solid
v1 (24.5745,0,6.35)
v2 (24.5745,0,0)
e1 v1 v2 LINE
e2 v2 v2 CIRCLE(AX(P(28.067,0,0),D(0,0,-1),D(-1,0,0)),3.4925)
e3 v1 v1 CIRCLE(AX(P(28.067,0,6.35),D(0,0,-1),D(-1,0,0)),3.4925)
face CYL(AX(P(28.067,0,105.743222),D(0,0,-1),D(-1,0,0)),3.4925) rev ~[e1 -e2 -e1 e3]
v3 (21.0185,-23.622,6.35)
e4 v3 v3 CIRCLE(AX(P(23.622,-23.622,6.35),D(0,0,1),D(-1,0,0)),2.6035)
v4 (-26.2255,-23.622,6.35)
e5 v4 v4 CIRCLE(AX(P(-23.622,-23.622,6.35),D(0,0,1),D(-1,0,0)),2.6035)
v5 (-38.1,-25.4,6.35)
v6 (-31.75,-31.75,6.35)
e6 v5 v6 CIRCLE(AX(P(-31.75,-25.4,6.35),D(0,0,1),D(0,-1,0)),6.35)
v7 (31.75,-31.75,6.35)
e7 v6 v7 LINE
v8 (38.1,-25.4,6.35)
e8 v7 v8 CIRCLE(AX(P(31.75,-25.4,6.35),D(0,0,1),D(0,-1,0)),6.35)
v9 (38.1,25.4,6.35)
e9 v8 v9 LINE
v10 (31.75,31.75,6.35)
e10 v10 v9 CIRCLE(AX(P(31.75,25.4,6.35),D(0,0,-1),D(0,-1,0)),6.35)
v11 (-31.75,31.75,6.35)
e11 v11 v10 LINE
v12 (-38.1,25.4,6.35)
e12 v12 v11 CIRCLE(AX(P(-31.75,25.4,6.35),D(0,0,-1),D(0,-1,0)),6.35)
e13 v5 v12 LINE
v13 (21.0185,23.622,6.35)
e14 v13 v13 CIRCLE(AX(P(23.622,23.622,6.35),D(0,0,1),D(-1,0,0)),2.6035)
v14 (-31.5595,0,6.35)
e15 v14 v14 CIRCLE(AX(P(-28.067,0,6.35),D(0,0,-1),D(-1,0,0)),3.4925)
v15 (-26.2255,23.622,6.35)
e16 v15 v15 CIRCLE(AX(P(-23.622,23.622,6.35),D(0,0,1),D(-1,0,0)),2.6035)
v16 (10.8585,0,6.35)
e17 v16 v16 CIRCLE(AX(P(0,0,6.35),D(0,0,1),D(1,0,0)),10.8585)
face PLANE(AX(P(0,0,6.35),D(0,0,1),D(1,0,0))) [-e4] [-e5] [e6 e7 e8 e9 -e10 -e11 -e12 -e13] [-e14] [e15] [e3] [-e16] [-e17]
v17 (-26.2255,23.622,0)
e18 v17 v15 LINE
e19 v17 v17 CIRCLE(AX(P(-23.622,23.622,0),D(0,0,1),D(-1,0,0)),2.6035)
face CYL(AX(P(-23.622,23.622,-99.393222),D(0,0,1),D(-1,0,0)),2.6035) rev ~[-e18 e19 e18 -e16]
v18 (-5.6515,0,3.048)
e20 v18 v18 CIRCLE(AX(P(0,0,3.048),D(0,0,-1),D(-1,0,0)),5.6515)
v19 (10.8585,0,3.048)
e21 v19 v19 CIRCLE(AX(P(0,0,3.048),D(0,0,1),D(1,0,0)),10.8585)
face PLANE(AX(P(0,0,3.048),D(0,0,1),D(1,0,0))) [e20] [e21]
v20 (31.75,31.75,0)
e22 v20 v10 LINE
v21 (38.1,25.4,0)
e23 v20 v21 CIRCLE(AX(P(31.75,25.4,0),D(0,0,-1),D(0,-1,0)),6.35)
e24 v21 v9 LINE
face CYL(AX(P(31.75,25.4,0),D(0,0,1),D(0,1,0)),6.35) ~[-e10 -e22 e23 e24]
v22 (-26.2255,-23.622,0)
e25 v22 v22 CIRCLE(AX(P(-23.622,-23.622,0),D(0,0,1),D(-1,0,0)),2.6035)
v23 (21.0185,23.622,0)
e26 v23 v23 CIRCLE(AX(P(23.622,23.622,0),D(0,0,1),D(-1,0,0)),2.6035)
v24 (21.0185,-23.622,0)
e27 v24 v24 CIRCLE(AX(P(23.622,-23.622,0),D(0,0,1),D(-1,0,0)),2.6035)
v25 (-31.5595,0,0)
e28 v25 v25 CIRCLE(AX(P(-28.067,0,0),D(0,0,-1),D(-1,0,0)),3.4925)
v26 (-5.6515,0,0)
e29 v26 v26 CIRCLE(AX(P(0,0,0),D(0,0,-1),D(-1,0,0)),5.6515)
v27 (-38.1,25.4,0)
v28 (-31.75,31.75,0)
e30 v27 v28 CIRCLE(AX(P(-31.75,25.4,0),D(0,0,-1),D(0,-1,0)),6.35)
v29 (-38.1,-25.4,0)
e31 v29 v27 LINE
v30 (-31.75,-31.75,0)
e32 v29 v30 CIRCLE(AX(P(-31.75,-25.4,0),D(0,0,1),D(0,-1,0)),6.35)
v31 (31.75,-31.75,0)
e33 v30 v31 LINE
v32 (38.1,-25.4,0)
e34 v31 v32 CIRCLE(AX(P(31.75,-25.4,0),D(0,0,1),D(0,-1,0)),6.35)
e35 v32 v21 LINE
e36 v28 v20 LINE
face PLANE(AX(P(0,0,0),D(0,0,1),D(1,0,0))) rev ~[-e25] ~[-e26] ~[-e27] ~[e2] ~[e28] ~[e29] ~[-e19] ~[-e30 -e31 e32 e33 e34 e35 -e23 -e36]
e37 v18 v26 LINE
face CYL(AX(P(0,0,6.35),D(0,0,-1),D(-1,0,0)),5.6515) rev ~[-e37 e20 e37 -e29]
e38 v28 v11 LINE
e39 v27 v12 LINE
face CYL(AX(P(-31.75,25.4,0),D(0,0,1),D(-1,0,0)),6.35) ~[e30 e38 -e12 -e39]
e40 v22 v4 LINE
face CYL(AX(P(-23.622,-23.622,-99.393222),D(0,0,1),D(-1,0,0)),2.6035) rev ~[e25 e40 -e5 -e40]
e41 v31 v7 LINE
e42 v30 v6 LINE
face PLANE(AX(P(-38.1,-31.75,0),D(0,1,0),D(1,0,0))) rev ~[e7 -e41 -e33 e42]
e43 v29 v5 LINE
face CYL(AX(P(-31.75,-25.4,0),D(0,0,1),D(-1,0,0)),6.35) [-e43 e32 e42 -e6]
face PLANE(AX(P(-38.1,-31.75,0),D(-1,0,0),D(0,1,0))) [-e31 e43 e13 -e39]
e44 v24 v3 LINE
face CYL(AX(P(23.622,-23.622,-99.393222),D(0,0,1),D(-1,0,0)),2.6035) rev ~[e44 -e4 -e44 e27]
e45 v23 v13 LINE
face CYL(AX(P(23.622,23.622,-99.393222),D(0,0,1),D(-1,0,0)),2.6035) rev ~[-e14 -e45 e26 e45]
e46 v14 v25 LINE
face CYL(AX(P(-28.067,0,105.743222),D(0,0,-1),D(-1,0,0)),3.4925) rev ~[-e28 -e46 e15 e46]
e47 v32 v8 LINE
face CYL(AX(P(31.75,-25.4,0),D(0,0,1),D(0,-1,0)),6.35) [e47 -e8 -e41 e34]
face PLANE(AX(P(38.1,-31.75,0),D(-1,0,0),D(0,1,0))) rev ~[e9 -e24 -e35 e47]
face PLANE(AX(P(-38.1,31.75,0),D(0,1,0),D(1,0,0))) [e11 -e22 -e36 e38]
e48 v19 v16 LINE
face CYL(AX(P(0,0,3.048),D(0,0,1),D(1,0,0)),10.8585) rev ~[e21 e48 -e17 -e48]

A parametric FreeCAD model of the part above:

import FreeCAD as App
import Part
import Sketcher

V = App.Vector
Q = App.Units.Quantity


def edges_at(feature, points):
    """Names of the edges that pass closest to the given points."""
    edges = feature.Shape.Edges
    near = lambda p: min(range(len(edges)), key=lambda i: edges[i].distToShape(Part.Vertex(*p))[0])
    return sorted({f"Edge{near(p) + 1}" for p in points})


def add_polygon(sketch, points):
    """Adds a closed chain of lines whose ends are joined by coincident constraints."""
    first, n = sketch.GeometryCount, len(points)
    for a, b in zip(points, points[1:] + points[:1]):
        sketch.addGeometry(Part.LineSegment(App.Vector(*a, 0), App.Vector(*b, 0)), False)
    for i in range(n):
        sketch.addConstraint(Sketcher.Constraint("Coincident", first + i, 2, first + (i + 1) % n, 1))

doc = App.newDocument("Part")
body = doc.addObject("PartDesign::Body", "Body")

sketch1 = body.newObject("Sketcher::SketchObject", "Sketch")
sketch1.AttachmentSupport = (doc.getObject("XY_Plane"), [""])
sketch1.MapMode = "FlatFace"
add_polygon(sketch1, [(-38.1, 31.75), (-38.1, -31.75), (38.1, -31.75), (38.1, 31.75)])
sketch1.addConstraint([
    Sketcher.Constraint("Vertical", 0),
    Sketcher.Constraint("Horizontal", 1),
    Sketcher.Constraint("Vertical", 2),
    Sketcher.Constraint("Horizontal", 3),
    Sketcher.Constraint("Symmetric", 0, 2, 2, 2, -1, 1),
    Sketcher.Constraint("DistanceX", 1, 1, 1, 2, Q("3 in")),
    Sketcher.Constraint("DistanceY", 0, 2, 0, 1, Q("2.5 in")),
])
pad1 = body.newObject("PartDesign::Pad", "Pad")
pad1.Profile = sketch1
pad1.Length = Q("0.25 in")

sketch2 = body.newObject("Sketcher::SketchObject", "Sketch001")
sketch2.AttachmentSupport = (doc.getObject("XY_Plane"), [""])
sketch2.MapMode = "FlatFace"
sketch2.AttachmentOffset = App.Placement(V(0, 0, 0.25 * 25.4), App.Rotation())
sketch2.addGeometry(Part.Circle(V(0, 0, 0), V(0, 0, 1), 5.6515), False)
sketch2.addConstraint([
    Sketcher.Constraint("Coincident", 0, 3, -1, 1),
    Sketcher.Constraint("Diameter", 0, Q("0.445 in")),
])
doc.recompute()
hole = body.newObject("PartDesign::Hole", "Hole")
hole.Profile = sketch2
hole.ThreadType = "None"
hole.Diameter = Q("0.445 in")
hole.DepthType = "ThroughAll"
hole.HoleCutType = "Counterbore"
hole.HoleCutDiameter = Q("0.855 in")
hole.HoleCutDepth = Q("0.13 in")

sketch3 = body.newObject("Sketcher::SketchObject", "Sketch002")
sketch3.AttachmentSupport = (doc.getObject("XY_Plane"), [""])
sketch3.MapMode = "FlatFace"
sketch3.AttachmentOffset = App.Placement(V(0, 0, 0.25 * 25.4), App.Rotation())
sketch3.addGeometry(Part.Circle(V(-28.067, 0, 0), V(0, 0, 1), 3.4925), False)
sketch3.addConstraint([
    Sketcher.Constraint("PointOnObject", 0, 3, -1),
    Sketcher.Constraint("Diameter", 0, Q("0.275 in")),
    Sketcher.Constraint("DistanceX", 0, 3, -1, 1, Q("1.105 in")),
])
doc.recompute()
hole2 = body.newObject("PartDesign::Hole", "Hole001")
hole2.Profile = sketch3
hole2.ThreadType = "None"
hole2.Diameter = Q("0.275 in")
hole2.DepthType = "ThroughAll"

sketch4 = body.newObject("Sketcher::SketchObject", "Sketch003")
sketch4.AttachmentSupport = (doc.getObject("XY_Plane"), [""])
sketch4.MapMode = "FlatFace"
sketch4.AttachmentOffset = App.Placement(V(0, 0, 0.25 * 25.4), App.Rotation())
sketch4.addGeometry(Part.Circle(V(28.067, 0, 0), V(0, 0, 1), 3.4925), False)
sketch4.addConstraint([
    Sketcher.Constraint("PointOnObject", 0, 3, -1),
    Sketcher.Constraint("Diameter", 0, Q("0.275 in")),
    Sketcher.Constraint("DistanceX", -1, 1, 0, 3, Q("1.105 in")),
])
doc.recompute()
hole3 = body.newObject("PartDesign::Hole", "Hole002")
hole3.Profile = sketch4
hole3.ThreadType = "None"
hole3.Diameter = Q("0.275 in")
hole3.DepthType = "ThroughAll"

sketch5 = body.newObject("Sketcher::SketchObject", "Sketch004")
sketch5.AttachmentSupport = (doc.getObject("XY_Plane"), [""])
sketch5.MapMode = "FlatFace"
sketch5.addGeometry(Part.Circle(V(-23.622, -23.622, 0), V(0, 0, 1), 2.6035), False)
sketch5.addConstraint([
    Sketcher.Constraint("Diameter", 0, Q("0.205 in")),
    Sketcher.Constraint("DistanceX", 0, 3, -1, 1, Q("0.93 in")),
    Sketcher.Constraint("DistanceY", 0, 3, -1, 1, Q("0.93 in")),
])
doc.recompute()
hole4 = body.newObject("PartDesign::Hole", "Hole003")
hole4.Profile = sketch5
hole4.ThreadType = "None"
hole4.Diameter = Q("0.205 in")
hole4.DepthType = "ThroughAll"
hole4.Reversed = True

sketch6 = body.newObject("Sketcher::SketchObject", "Sketch005")
sketch6.AttachmentSupport = (doc.getObject("XY_Plane"), [""])
sketch6.MapMode = "FlatFace"
sketch6.addGeometry([
    Part.Circle(V(23.622, -23.622, 0), V(0, 0, 1), 2.6035),
    Part.Circle(V(-23.622, 23.622, 0), V(0, 0, 1), 2.6035),
], False)
sketch6.addConstraint([
    Sketcher.Constraint("Equal", 0, 1),
    Sketcher.Constraint("Symmetric", 0, 3, 1, 3, -1, 1),
    Sketcher.Constraint("Diameter", 0, Q("0.205 in")),
    Sketcher.Constraint("DistanceX", -1, 1, 0, 3, Q("0.93 in")),
    Sketcher.Constraint("DistanceY", 0, 3, -1, 1, Q("0.93 in")),
])
doc.recompute()
hole5 = body.newObject("PartDesign::Hole", "Hole004")
hole5.Profile = sketch6
hole5.ThreadType = "None"
hole5.Diameter = Q("0.205 in")
hole5.DepthType = "ThroughAll"
hole5.Reversed = True

sketch7 = body.newObject("Sketcher::SketchObject", "Sketch006")
sketch7.AttachmentSupport = (doc.getObject("XY_Plane"), [""])
sketch7.MapMode = "FlatFace"
sketch7.addGeometry(Part.Circle(V(23.622, 23.622, 0), V(0, 0, 1), 2.6035), False)
sketch7.addConstraint([
    Sketcher.Constraint("Diameter", 0, Q("0.205 in")),
    Sketcher.Constraint("DistanceX", -1, 1, 0, 3, Q("0.93 in")),
    Sketcher.Constraint("DistanceY", -1, 1, 0, 3, Q("0.93 in")),
])
doc.recompute()
hole6 = body.newObject("PartDesign::Hole", "Hole005")
hole6.Profile = sketch7
hole6.ThreadType = "None"
hole6.Diameter = Q("0.205 in")
hole6.DepthType = "ThroughAll"
hole6.Reversed = True
doc.recompute()

fillet = body.newObject("PartDesign::Fillet", "Fillet")
fillet.Base = (hole6, edges_at(hole6, [
    (-38.1, -31.75, 3.175),
    (38.1, -31.75, 3.175),
    (38.1, 31.75, 3.175),
    (-38.1, 31.75, 3.175),
]))
fillet.Radius = Q("0.25 in")

doc.recompute()
